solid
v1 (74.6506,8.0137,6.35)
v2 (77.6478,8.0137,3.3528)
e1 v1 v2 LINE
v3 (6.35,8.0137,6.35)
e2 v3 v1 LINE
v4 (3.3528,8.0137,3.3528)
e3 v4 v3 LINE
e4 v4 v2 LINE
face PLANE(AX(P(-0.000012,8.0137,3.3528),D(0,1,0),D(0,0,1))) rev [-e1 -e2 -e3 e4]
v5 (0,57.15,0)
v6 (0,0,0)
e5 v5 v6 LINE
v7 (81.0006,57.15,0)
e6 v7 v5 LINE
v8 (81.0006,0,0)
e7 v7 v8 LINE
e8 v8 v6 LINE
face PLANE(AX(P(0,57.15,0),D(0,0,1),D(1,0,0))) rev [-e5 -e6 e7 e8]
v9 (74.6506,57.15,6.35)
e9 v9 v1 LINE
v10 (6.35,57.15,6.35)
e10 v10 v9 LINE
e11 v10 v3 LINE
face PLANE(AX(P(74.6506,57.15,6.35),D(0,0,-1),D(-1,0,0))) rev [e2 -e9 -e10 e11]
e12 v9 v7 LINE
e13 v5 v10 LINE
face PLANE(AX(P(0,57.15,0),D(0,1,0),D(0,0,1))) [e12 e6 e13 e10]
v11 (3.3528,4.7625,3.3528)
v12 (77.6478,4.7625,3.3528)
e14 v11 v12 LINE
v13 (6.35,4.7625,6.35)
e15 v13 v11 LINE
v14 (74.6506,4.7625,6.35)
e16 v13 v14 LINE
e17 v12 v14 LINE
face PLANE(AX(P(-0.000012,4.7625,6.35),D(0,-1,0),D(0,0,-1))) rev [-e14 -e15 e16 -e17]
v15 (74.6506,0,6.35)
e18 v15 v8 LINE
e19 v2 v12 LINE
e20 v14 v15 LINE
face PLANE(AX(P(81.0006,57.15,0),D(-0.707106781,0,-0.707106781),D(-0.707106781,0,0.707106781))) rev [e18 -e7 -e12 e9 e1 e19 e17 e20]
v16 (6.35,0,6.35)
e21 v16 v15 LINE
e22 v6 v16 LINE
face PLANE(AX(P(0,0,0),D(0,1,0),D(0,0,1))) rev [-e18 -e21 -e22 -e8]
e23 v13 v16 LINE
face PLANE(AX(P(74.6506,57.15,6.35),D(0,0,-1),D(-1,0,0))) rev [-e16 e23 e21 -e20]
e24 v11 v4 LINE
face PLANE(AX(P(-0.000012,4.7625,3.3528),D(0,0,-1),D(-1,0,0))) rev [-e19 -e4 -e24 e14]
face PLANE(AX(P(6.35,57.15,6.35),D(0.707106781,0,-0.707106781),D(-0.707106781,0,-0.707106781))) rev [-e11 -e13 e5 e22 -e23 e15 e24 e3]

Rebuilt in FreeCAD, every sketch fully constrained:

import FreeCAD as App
import Part
import Sketcher
from FreeCAD import Vector
Q = App.Units.Quantity

doc = App.newDocument("Part")
params = doc.addObject("Spreadsheet::Sheet", "Params")
for row, (alias, value) in enumerate([
    ("sketch1_width", "3.189 in"),
    ("sketch1_width2", "2.689 in"),
    ("pad1_length", "2.25 in"),
    ("sketch2_width", "0.128 in"),
    ("sketch2_height", "0.118 in"),
], start=1):
    params.set(f"A{row}", alias)
    params.set(f"B{row}", "=" + value)
    params.setAlias(f"B{row}", alias)

body = doc.addObject("PartDesign::Body", "Body")

sketch1 = body.newObject("Sketcher::SketchObject", "Sketch")
sketch1.AttachmentSupport = (doc.getObject("XZ_Plane"), [""])
sketch1.MapMode = "FlatFace"
sketch1.addGeometry(Part.LineSegment(Vector(81.0006, 0, 0), Vector(0, 0, 0)), False)
sketch1.addGeometry(Part.LineSegment(Vector(0, 0, 0), Vector(6.35, 6.35, 0)), False)
sketch1.addGeometry(Part.LineSegment(Vector(6.35, 6.35, 0), Vector(74.6506, 6.35, 0)), False)
sketch1.addGeometry(Part.LineSegment(Vector(74.6506, 6.35, 0), Vector(81.0006, 0, 0)), False)
sketch1.addConstraint(Sketcher.Constraint("Coincident", 0, 2, 1, 1))
sketch1.addConstraint(Sketcher.Constraint("Coincident", 1, 2, 2, 1))
sketch1.addConstraint(Sketcher.Constraint("Coincident", 2, 2, 3, 1))
sketch1.addConstraint(Sketcher.Constraint("Coincident", 3, 2, 0, 1))
sketch1.addConstraint(Sketcher.Constraint("Horizontal", 0))
sketch1.addConstraint(Sketcher.Constraint("Horizontal", 2))
sketch1.addConstraint(Sketcher.Constraint("Coincident", 0, 2, -1, 1))
sketch1.addConstraint(Sketcher.Constraint("Perpendicular", 1, 3))
sketch1.addConstraint(Sketcher.Constraint("Equal", 1, 3))
sketch1.addConstraint(Sketcher.Constraint("DistanceX", 0, 2, 0, 1, Q("3.189 in")))
sketch1.addConstraint(Sketcher.Constraint("DistanceX", 2, 1, 2, 2, Q("2.689 in")))
sketch1.setExpression("Constraints[9]", "Params.sketch1_width")
sketch1.setExpression("Constraints[10]", "Params.sketch1_width2")
pad1 = body.newObject("PartDesign::Pad", "Pad")
pad1.Profile = sketch1
pad1.setExpression("Length", "Params.pad1_length")
pad1.Reversed = True

sketch2 = body.newObject("Sketcher::SketchObject", "Sketch001")
sketch2.AttachmentSupport = (doc.getObject("YZ_Plane"), [""])
sketch2.MapMode = "FlatFace"
sketch2.addGeometry(Part.LineSegment(Vector(8.0137, 6.35, 0), Vector(4.7625, 6.35, 0)), False)
sketch2.addGeometry(Part.LineSegment(Vector(4.7625, 6.35, 0), Vector(4.7625, 3.3528, 0)), False)
sketch2.addGeometry(Part.LineSegment(Vector(4.7625, 3.3528, 0), Vector(8.0137, 3.3528, 0)), False)
sketch2.addGeometry(Part.LineSegment(Vector(8.0137, 3.3528, 0), Vector(8.0137, 6.35, 0)), False)
sketch2.addConstraint(Sketcher.Constraint("Coincident", 0, 2, 1, 1))
sketch2.addConstraint(Sketcher.Constraint("Coincident", 1, 2, 2, 1))
sketch2.addConstraint(Sketcher.Constraint("Coincident", 2, 2, 3, 1))
sketch2.addConstraint(Sketcher.Constraint("Coincident", 3, 2, 0, 1))
sketch2.addConstraint(Sketcher.Constraint("Horizontal", 0))
sketch2.addConstraint(Sketcher.Constraint("Vertical", 1))
sketch2.addConstraint(Sketcher.Constraint("Horizontal", 2))
sketch2.addConstraint(Sketcher.Constraint("Vertical", 3))
sketch2.addConstraint(Sketcher.Constraint("DistanceX", 0, 2, 0, 1, Q("0.128 in")))
sketch2.addConstraint(Sketcher.Constraint("DistanceY", 1, 2, 1, 1, Q("0.118 in")))
sketch2.addConstraint(Sketcher.Constraint("DistanceY", -1, 1, 0, 2, Q("0.25 in")))
sketch2.addConstraint(Sketcher.Constraint("DistanceX", -1, 1, 0, 2, Q("0.1875 in")))
sketch2.setExpression("Constraints[8]", "Params.sketch2_width")
sketch2.setExpression("Constraints[9]", "Params.sketch2_height")
pocket1 = body.newObject("PartDesign::Pocket", "Pocket")
pocket1.Profile = sketch2
pocket1.Type = "ThroughAll"
pocket1.Midplane = True

doc.recompute()
